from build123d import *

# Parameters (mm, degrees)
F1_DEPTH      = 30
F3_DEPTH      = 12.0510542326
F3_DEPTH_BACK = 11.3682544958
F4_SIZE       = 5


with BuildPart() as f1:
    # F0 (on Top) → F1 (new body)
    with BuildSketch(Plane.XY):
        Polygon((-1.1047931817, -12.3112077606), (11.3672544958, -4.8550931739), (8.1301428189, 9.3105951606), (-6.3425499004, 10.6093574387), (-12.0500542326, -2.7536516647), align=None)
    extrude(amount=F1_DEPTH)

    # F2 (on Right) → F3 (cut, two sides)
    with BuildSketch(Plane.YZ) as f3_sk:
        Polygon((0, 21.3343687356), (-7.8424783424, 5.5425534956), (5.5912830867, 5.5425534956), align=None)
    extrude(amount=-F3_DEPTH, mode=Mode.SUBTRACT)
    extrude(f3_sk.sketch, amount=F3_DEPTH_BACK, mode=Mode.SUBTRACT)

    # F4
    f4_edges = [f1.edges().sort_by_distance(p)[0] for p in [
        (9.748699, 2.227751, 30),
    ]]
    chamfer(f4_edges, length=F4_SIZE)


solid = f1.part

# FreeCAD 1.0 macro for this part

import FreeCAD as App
import Part
import Sketcher
from FreeCAD import Vector


def edges_at(feature, points):
    """Names of the edges that pass closest to the given points."""
    edges = feature.Shape.Edges
    near = lambda p: min(range(len(edges)), key=lambda i: edges[i].distToShape(Part.Vertex(*p))[0])
    return sorted({f"Edge{near(p) + 1}" for p in points})

doc = App.newDocument("Part")
body = doc.addObject("PartDesign::Body", "Body")

sketch1 = doc.addObject("Sketcher::SketchObject", "Sketch")
body.addObject(sketch1)
sketch1.AttachmentSupport = (doc.XY_Plane, [""])
sketch1.MapMode = "FlatFace"
sketch1.addGeometry([
    Part.LineSegment(Vector(-1.104793, -12.311208, 0), Vector(11.367254, -4.855093, 0)),
    Part.LineSegment(Vector(11.367254, -4.855093, 0), Vector(8.130143, 9.310595, 0)),
    Part.LineSegment(Vector(8.130143, 9.310595, 0), Vector(-6.34255, 10.609357, 0)),
    Part.LineSegment(Vector(-6.34255, 10.609357, 0), Vector(-12.050054, -2.753652, 0)),
    Part.LineSegment(Vector(-12.050054, -2.753652, 0), Vector(-1.104793, -12.311208, 0)),
], False)
sketch1.addConstraint([
    Sketcher.Constraint("Coincident", 0, 2, 1, 1),
    Sketcher.Constraint("Coincident", 1, 2, 2, 1),
    Sketcher.Constraint("Coincident", 2, 2, 3, 1),
    Sketcher.Constraint("Coincident", 3, 2, 4, 1),
    Sketcher.Constraint("Coincident", 4, 2, 0, 1),
    Sketcher.Constraint("Equal", 0, 1),
    Sketcher.Constraint("Equal", 1, 2),
    Sketcher.Constraint("Equal", 2, 3),
    Sketcher.Constraint("Equal", 3, 4),
    Sketcher.Constraint("Distance", 0, 14.530851),
    Sketcher.Constraint("DistanceX", 2, 2, -1, 1, 6.34255),
    Sketcher.Constraint("DistanceY", 3, 2, -1, 1, 2.753652),
    Sketcher.Constraint("DistanceX", 1, 2, 0, 2, 3.237112),
    Sketcher.Constraint("DistanceY", 0, 2, 2, 2, 15.464451),
    Sketcher.Constraint("DistanceY", 3, 2, 2, 2, 13.363009),
])
pad1 = doc.addObject("PartDesign::Pad", "Pad")
body.addObject(pad1)
pad1.Profile = sketch1
pad1.Length = 30

sketch2 = doc.addObject("Sketcher::SketchObject", "Sketch001")
body.addObject(sketch2)
sketch2.AttachmentSupport = (doc.YZ_Plane, [""])
sketch2.MapMode = "FlatFace"
sketch2.addGeometry([
    Part.LineSegment(Vector(0, 21.334369, 0), Vector(-7.842478, 5.542553, 0)),
    Part.LineSegment(Vector(-7.842478, 5.542553, 0), Vector(5.591283, 5.542553, 0)),
    Part.LineSegment(Vector(5.591283, 5.542553, 0), Vector(0, 21.334369, 0)),
], False)
sketch2.addConstraint([
    Sketcher.Constraint("Coincident", 0, 2, 1, 1),
    Sketcher.Constraint("Coincident", 1, 2, 2, 1),
    Sketcher.Constraint("Coincident", 2, 2, 0, 1),
    Sketcher.Constraint("Horizontal", 1),
    Sketcher.Constraint("PointOnObject", 2, 2, -2),
    Sketcher.Constraint("DistanceX", 1, 1, 1, 2, 13.433761),
    Sketcher.Constraint("Distance", 2, 16.752429),
    Sketcher.Constraint("DistanceX", 0, 2, -1, 1, 7.842478),
    Sketcher.Constraint("DistanceY", -1, 1, 2, 2, 21.334369),
])
pocket1 = doc.addObject("PartDesign::Pocket", "Pocket")
body.addObject(pocket1)
pocket1.Profile = sketch2
pocket1.Type = "ThroughAll"
pocket1.Midplane = True
doc.recompute()

chamfer = doc.addObject("PartDesign::Chamfer", "Chamfer")
body.addObject(chamfer)
chamfer.Base = (pocket1, edges_at(pocket1, [(9.749, 2.228, 30)]))
chamfer.Size = 5

doc.recompute()
